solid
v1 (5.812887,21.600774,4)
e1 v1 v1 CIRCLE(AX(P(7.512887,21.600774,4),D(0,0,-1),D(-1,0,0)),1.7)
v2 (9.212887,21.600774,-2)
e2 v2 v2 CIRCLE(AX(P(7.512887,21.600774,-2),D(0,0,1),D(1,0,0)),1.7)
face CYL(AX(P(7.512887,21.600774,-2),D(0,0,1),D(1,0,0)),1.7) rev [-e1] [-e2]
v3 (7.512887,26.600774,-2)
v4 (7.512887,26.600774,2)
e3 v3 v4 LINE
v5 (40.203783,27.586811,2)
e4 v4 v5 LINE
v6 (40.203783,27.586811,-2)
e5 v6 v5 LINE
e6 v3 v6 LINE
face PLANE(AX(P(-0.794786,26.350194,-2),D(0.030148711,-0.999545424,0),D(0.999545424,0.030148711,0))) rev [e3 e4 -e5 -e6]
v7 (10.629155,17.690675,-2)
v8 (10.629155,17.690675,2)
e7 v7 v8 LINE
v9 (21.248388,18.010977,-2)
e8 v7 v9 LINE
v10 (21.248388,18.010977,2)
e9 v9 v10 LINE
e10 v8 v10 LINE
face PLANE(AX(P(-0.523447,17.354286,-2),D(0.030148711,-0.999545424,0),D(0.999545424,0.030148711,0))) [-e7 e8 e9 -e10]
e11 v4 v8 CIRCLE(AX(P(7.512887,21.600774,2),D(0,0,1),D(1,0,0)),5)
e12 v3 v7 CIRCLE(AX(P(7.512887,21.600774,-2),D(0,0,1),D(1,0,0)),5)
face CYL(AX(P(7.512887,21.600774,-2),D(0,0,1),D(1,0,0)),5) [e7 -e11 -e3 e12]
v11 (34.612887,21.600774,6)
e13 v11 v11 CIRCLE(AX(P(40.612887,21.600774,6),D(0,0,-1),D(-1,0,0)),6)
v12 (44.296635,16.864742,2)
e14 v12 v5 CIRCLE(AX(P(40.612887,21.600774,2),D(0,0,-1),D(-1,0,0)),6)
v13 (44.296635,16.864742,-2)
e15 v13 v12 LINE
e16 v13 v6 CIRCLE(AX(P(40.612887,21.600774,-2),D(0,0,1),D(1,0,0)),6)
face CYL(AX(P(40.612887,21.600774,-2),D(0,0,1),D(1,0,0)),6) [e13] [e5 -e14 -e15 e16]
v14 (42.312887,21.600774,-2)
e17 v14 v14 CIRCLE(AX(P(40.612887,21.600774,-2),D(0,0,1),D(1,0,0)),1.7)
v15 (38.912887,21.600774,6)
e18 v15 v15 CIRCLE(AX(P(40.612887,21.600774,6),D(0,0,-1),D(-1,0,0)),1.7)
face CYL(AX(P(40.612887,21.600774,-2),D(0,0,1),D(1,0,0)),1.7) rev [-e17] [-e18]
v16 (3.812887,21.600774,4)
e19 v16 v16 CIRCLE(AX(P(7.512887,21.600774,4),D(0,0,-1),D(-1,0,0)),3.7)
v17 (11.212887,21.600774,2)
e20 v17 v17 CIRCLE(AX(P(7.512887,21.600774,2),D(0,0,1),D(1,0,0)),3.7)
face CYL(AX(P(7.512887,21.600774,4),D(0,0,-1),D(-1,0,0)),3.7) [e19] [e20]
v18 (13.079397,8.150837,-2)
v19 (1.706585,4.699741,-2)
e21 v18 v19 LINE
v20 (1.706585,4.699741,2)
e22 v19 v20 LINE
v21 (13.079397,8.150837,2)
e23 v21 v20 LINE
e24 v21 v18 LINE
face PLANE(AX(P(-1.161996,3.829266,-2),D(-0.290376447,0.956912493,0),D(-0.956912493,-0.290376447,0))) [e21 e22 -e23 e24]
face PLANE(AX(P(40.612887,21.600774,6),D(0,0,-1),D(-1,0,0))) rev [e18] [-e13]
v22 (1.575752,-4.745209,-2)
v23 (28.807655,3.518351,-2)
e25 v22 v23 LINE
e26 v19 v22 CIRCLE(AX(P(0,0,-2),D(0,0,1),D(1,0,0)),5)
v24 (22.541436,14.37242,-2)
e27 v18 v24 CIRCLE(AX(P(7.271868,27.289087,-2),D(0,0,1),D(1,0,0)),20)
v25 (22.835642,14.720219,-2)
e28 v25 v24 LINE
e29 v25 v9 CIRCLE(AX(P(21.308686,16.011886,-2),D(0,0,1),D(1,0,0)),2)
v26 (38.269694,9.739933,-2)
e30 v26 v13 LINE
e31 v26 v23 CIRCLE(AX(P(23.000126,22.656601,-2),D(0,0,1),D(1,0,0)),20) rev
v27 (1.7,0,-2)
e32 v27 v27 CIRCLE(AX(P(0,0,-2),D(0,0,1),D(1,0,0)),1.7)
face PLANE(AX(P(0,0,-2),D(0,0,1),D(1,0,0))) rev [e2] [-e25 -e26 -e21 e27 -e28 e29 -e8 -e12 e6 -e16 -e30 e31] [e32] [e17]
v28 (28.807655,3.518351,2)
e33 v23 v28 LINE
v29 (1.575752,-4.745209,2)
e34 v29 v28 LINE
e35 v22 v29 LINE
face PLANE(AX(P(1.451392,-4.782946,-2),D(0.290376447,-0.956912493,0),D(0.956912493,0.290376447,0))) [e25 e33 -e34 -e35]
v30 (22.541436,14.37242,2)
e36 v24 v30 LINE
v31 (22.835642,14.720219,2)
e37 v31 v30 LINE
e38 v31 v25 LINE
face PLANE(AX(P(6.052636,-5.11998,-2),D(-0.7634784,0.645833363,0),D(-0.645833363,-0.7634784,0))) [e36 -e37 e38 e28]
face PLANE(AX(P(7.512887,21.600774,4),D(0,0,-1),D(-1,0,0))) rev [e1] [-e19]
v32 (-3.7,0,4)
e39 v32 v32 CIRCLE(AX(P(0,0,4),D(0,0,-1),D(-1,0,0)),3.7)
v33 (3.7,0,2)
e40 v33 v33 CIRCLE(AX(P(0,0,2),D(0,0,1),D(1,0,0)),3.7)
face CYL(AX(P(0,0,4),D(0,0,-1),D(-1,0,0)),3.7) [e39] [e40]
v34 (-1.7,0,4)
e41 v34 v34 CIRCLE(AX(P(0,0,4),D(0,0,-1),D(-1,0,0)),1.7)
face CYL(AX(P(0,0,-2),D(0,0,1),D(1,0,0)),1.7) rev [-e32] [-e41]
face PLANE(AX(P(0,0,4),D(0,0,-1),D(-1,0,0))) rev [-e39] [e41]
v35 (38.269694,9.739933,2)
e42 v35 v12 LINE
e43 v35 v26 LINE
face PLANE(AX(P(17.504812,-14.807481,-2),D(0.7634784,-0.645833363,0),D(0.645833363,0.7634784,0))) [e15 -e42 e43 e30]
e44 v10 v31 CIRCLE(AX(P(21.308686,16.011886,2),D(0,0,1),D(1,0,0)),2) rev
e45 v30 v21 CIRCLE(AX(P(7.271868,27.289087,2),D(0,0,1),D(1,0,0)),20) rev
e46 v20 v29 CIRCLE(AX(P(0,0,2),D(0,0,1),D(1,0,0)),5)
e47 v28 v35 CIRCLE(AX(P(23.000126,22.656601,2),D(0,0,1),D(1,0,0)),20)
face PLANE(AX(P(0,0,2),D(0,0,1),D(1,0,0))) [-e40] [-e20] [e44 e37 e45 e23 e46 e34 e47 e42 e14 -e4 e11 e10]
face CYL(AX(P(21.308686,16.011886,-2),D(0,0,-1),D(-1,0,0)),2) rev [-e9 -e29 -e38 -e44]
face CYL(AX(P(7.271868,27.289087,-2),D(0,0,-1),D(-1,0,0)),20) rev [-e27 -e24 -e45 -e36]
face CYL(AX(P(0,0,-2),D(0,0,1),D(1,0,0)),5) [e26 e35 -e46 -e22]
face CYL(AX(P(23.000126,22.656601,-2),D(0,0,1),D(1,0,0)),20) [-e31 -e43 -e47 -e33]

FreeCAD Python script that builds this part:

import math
import FreeCAD as App
import Part
import Sketcher

V = App.Vector
Q = App.Units.Quantity


def edges_at(feature, points):
    """Names of the edges that pass closest to the given points."""
    edges = feature.Shape.Edges
    near = lambda p: min(range(len(edges)), key=lambda i: edges[i].distToShape(Part.Vertex(*p))[0])
    return sorted({f"Edge{near(p) + 1}" for p in points})

doc = App.newDocument("Part")
body = doc.addObject("PartDesign::Body", "Body")

sketch1 = body.newObject("Sketcher::SketchObject", "Sketch")
sketch1.AttachmentSupport = (doc.getObject("XY_Plane"), [""])
sketch1.MapMode = "FlatFace"
sketch1.addGeometry(Part.LineSegment(V(1.575752, -4.745209, 0), V(34.456925, 5.23263, 0)), False)
sketch1.addGeometry(Part.LineSegment(V(34.456925, 5.23263, 0), V(44.296635, 16.864742, 0)), False)
sketch1.addGeometry(Part.ArcOfCircle(Part.Circle(V(40.612887, 21.600774, 0), V(0, 0, 1), 6), math.radians(-52.123748), math.radians(93.909686)), False)
sketch1.addGeometry(Part.LineSegment(V(40.203783, 27.586811, 0), V(7.512887, 26.600774, 0)), False)
sketch1.addGeometry(Part.ArcOfCircle(Part.Circle(V(7.512887, 21.600774, 0), V(0, 0, 1), 5), math.radians(90), math.radians(308.554123)), False)
sketch1.addGeometry(Part.LineSegment(V(10.629155, 17.690675, 0), V(25.733767, 18.146267, 0)), False)
sketch1.addGeometry(Part.LineSegment(V(25.733767, 18.146267, 0), V(18.728666, 9.865116, 0)), False)
sketch1.addGeometry(Part.LineSegment(V(18.728666, 9.865116, 0), V(1.706585, 4.699741, 0)), False)
sketch1.addGeometry(Part.ArcOfCircle(Part.Circle(V(0, 0, 0), V(0, 0, 1), 5), math.radians(70.042871), math.radians(288.369897)), False)
sketch1.addGeometry(Part.Circle(V(0, 0, 0), V(0, 0, 1), 1.7), False)
sketch1.addGeometry(Part.Circle(V(7.512887, 21.600774, 0), V(0, 0, 1), 1.7), False)
sketch1.addGeometry(Part.Circle(V(40.612887, 21.600774, 0), V(0, 0, 1), 1.7), False)
sketch1.addConstraint(Sketcher.Constraint("Coincident", 0, 2, 1, 1))
sketch1.addConstraint(Sketcher.Constraint("Coincident", 1, 2, 2, 1))
sketch1.addConstraint(Sketcher.Constraint("Coincident", 2, 2, 3, 1))
sketch1.addConstraint(Sketcher.Constraint("Coincident", 3, 2, 4, 1))
sketch1.addConstraint(Sketcher.Constraint("Coincident", 4, 2, 5, 1))
sketch1.addConstraint(Sketcher.Constraint("Coincident", 5, 2, 6, 1))
sketch1.addConstraint(Sketcher.Constraint("Coincident", 6, 2, 7, 1))
sketch1.addConstraint(Sketcher.Constraint("Coincident", 7, 2, 8, 1))
sketch1.addConstraint(Sketcher.Constraint("Coincident", 8, 2, 0, 1))
sketch1.addConstraint(Sketcher.Constraint("Coincident", 8, 3, -1, 1))
sketch1.addConstraint(Sketcher.Constraint("Coincident", 9, 3, -1, 1))
sketch1.addConstraint(Sketcher.Constraint("Coincident", 10, 3, 4, 3))
sketch1.addConstraint(Sketcher.Constraint("Coincident", 11, 3, 2, 3))
sketch1.addConstraint(Sketcher.Constraint("Radius", 2, Q("6 mm")))
sketch1.addConstraint(Sketcher.Constraint("Radius", 4, Q("5 mm")))
sketch1.addConstraint(Sketcher.Constraint("Radius", 8, Q("5 mm")))
sketch1.addConstraint(Sketcher.Constraint("Diameter", 9, Q("3.4 mm")))
sketch1.addConstraint(Sketcher.Constraint("Diameter", 10, Q("3.4 mm")))
sketch1.addConstraint(Sketcher.Constraint("Diameter", 11, Q("3.4 mm")))
sketch1.addConstraint(Sketcher.Constraint("DistanceX", 4, 3, 2, 3, Q("33.1 mm")))
sketch1.addConstraint(Sketcher.Constraint("DistanceY", 4, 2, 4, 3, Q("3.910099 mm")))
sketch1.addConstraint(Sketcher.Constraint("DistanceX", 6, 2, 5, 2, Q("7.005101 mm")))
sketch1.addConstraint(Sketcher.Constraint("Distance", 1, Q("15.23568 mm")))
sketch1.addConstraint(Sketcher.Constraint("Distance", 5, Q("15.111482 mm")))
sketch1.addConstraint(Sketcher.Constraint("DistanceY", -1, 1, 0, 2, Q("5.23263 mm")))
sketch1.addConstraint(Sketcher.Constraint("DistanceY", -1, 1, 2, 2, Q("27.586811 mm")))
sketch1.addConstraint(Sketcher.Constraint("DistanceY", -1, 1, 7, 2, Q("4.699741 mm")))
sketch1.addConstraint(Sketcher.Constraint("DistanceY", 8, 2, -1, 1, Q("4.745209 mm")))
sketch1.addConstraint(Sketcher.Constraint("DistanceX", 0, 2, 2, 3, Q("6.155962 mm")))
sketch1.addConstraint(Sketcher.Constraint("DistanceX", 2, 3, 1, 2, Q("3.683749 mm")))
sketch1.addConstraint(Sketcher.Constraint("DistanceY", 1, 2, 4, 3, Q("4.736032 mm")))
sketch1.addConstraint(Sketcher.Constraint("DistanceX", 3, 2, 4, 2, Q("3.116268 mm")))
sketch1.addConstraint(Sketcher.Constraint("DistanceY", 4, 2, 5, 2, Q("0.455592 mm")))
sketch1.addConstraint(Sketcher.Constraint("DistanceY", 6, 2, 5, 2, Q("8.281151 mm")))
sketch1.addConstraint(Sketcher.Constraint("DistanceX", 7, 2, 4, 2, Q("8.92257 mm")))
pad1 = body.newObject("PartDesign::Pad", "Pad")
pad1.Profile = sketch1
pad1.Type = "TwoLengths"
pad1.Length = 2
pad1.Length2 = 2
doc.recompute()

fillet = body.newObject("PartDesign::Fillet", "Fillet")
fillet.Base = (pad1, edges_at(pad1, [(34.457, 5.233, 0), (18.729, 9.865, 0)]))
fillet.Radius = 20

sketch2 = body.newObject("Sketcher::SketchObject", "Sketch001")
sketch2.AttachmentSupport = (doc.getObject("XY_Plane"), [""])
sketch2.MapMode = "FlatFace"
sketch2.AttachmentOffset = App.Placement(V(0, 0, 2), App.Rotation())
sketch2.addGeometry(Part.Circle(V(40.6, 21.6, 0), V(0, 0, 1), 6), False)
sketch2.addGeometry(Part.Circle(V(40.6, 21.6, 0), V(0, 0, 1), 1.7), False)
sketch2.addConstraint(Sketcher.Constraint("Coincident", 1, 3, 0, 3))
sketch2.addConstraint(Sketcher.Constraint("Diameter", 0, Q("12 mm")))
sketch2.addConstraint(Sketcher.Constraint("Diameter", 1, Q("3.4 mm")))
sketch2.addConstraint(Sketcher.Constraint("DistanceX", -1, 1, 0, 3, Q("40.612887 mm")))
sketch2.addConstraint(Sketcher.Constraint("DistanceY", -1, 1, 0, 3, Q("21.600774 mm")))
pad2 = body.newObject("PartDesign::Pad", "Pad001")
pad2.Profile = sketch2
pad2.Length = 4

sketch3 = body.newObject("Sketcher::SketchObject", "Sketch002")
sketch3.AttachmentSupport = (doc.getObject("XY_Plane"), [""])
sketch3.MapMode = "FlatFace"
sketch3.AttachmentOffset = App.Placement(V(0, 0, 2), App.Rotation())
sketch3.addGeometry(Part.Circle(V(7.5, 21.6, 0), V(0, 0, 1), 3.7), False)
sketch3.addGeometry(Part.Circle(V(7.5, 21.6, 0), V(0, 0, 1), 1.7), False)
sketch3.addGeometry(Part.Circle(V(0, 0, 0), V(0, 0, 1), 3.7), False)
sketch3.addGeometry(Part.Circle(V(0, 0, 0), V(0, 0, 1), 1.7), False)
sketch3.addConstraint(Sketcher.Constraint("Coincident", 2, 3, -1, 1))
sketch3.addConstraint(Sketcher.Constraint("Coincident", 3, 3, -1, 1))
sketch3.addConstraint(Sketcher.Constraint("Coincident", 1, 3, 0, 3))
sketch3.addConstraint(Sketcher.Constraint("Equal", 0, 2))
sketch3.addConstraint(Sketcher.Constraint("Equal", 1, 3))
sketch3.addConstraint(Sketcher.Constraint("Diameter", 0, Q("7.4 mm")))
sketch3.addConstraint(Sketcher.Constraint("Diameter", 1, Q("3.4 mm")))
sketch3.addConstraint(Sketcher.Constraint("DistanceX", -1, 1, 0, 3, Q("7.512887 mm")))
sketch3.addConstraint(Sketcher.Constraint("DistanceY", -1, 1, 0, 3, Q("21.600774 mm")))
pad3 = body.newObject("PartDesign::Pad", "Pad002")
pad3.Profile = sketch3
pad3.Length = 2
doc.recompute()

fillet2 = body.newObject("PartDesign::Fillet", "Fillet001")
fillet2.Base = (pad3, edges_at(pad3, [(25.734, 18.146, 0)]))
fillet2.Radius = 2

doc.recompute()
